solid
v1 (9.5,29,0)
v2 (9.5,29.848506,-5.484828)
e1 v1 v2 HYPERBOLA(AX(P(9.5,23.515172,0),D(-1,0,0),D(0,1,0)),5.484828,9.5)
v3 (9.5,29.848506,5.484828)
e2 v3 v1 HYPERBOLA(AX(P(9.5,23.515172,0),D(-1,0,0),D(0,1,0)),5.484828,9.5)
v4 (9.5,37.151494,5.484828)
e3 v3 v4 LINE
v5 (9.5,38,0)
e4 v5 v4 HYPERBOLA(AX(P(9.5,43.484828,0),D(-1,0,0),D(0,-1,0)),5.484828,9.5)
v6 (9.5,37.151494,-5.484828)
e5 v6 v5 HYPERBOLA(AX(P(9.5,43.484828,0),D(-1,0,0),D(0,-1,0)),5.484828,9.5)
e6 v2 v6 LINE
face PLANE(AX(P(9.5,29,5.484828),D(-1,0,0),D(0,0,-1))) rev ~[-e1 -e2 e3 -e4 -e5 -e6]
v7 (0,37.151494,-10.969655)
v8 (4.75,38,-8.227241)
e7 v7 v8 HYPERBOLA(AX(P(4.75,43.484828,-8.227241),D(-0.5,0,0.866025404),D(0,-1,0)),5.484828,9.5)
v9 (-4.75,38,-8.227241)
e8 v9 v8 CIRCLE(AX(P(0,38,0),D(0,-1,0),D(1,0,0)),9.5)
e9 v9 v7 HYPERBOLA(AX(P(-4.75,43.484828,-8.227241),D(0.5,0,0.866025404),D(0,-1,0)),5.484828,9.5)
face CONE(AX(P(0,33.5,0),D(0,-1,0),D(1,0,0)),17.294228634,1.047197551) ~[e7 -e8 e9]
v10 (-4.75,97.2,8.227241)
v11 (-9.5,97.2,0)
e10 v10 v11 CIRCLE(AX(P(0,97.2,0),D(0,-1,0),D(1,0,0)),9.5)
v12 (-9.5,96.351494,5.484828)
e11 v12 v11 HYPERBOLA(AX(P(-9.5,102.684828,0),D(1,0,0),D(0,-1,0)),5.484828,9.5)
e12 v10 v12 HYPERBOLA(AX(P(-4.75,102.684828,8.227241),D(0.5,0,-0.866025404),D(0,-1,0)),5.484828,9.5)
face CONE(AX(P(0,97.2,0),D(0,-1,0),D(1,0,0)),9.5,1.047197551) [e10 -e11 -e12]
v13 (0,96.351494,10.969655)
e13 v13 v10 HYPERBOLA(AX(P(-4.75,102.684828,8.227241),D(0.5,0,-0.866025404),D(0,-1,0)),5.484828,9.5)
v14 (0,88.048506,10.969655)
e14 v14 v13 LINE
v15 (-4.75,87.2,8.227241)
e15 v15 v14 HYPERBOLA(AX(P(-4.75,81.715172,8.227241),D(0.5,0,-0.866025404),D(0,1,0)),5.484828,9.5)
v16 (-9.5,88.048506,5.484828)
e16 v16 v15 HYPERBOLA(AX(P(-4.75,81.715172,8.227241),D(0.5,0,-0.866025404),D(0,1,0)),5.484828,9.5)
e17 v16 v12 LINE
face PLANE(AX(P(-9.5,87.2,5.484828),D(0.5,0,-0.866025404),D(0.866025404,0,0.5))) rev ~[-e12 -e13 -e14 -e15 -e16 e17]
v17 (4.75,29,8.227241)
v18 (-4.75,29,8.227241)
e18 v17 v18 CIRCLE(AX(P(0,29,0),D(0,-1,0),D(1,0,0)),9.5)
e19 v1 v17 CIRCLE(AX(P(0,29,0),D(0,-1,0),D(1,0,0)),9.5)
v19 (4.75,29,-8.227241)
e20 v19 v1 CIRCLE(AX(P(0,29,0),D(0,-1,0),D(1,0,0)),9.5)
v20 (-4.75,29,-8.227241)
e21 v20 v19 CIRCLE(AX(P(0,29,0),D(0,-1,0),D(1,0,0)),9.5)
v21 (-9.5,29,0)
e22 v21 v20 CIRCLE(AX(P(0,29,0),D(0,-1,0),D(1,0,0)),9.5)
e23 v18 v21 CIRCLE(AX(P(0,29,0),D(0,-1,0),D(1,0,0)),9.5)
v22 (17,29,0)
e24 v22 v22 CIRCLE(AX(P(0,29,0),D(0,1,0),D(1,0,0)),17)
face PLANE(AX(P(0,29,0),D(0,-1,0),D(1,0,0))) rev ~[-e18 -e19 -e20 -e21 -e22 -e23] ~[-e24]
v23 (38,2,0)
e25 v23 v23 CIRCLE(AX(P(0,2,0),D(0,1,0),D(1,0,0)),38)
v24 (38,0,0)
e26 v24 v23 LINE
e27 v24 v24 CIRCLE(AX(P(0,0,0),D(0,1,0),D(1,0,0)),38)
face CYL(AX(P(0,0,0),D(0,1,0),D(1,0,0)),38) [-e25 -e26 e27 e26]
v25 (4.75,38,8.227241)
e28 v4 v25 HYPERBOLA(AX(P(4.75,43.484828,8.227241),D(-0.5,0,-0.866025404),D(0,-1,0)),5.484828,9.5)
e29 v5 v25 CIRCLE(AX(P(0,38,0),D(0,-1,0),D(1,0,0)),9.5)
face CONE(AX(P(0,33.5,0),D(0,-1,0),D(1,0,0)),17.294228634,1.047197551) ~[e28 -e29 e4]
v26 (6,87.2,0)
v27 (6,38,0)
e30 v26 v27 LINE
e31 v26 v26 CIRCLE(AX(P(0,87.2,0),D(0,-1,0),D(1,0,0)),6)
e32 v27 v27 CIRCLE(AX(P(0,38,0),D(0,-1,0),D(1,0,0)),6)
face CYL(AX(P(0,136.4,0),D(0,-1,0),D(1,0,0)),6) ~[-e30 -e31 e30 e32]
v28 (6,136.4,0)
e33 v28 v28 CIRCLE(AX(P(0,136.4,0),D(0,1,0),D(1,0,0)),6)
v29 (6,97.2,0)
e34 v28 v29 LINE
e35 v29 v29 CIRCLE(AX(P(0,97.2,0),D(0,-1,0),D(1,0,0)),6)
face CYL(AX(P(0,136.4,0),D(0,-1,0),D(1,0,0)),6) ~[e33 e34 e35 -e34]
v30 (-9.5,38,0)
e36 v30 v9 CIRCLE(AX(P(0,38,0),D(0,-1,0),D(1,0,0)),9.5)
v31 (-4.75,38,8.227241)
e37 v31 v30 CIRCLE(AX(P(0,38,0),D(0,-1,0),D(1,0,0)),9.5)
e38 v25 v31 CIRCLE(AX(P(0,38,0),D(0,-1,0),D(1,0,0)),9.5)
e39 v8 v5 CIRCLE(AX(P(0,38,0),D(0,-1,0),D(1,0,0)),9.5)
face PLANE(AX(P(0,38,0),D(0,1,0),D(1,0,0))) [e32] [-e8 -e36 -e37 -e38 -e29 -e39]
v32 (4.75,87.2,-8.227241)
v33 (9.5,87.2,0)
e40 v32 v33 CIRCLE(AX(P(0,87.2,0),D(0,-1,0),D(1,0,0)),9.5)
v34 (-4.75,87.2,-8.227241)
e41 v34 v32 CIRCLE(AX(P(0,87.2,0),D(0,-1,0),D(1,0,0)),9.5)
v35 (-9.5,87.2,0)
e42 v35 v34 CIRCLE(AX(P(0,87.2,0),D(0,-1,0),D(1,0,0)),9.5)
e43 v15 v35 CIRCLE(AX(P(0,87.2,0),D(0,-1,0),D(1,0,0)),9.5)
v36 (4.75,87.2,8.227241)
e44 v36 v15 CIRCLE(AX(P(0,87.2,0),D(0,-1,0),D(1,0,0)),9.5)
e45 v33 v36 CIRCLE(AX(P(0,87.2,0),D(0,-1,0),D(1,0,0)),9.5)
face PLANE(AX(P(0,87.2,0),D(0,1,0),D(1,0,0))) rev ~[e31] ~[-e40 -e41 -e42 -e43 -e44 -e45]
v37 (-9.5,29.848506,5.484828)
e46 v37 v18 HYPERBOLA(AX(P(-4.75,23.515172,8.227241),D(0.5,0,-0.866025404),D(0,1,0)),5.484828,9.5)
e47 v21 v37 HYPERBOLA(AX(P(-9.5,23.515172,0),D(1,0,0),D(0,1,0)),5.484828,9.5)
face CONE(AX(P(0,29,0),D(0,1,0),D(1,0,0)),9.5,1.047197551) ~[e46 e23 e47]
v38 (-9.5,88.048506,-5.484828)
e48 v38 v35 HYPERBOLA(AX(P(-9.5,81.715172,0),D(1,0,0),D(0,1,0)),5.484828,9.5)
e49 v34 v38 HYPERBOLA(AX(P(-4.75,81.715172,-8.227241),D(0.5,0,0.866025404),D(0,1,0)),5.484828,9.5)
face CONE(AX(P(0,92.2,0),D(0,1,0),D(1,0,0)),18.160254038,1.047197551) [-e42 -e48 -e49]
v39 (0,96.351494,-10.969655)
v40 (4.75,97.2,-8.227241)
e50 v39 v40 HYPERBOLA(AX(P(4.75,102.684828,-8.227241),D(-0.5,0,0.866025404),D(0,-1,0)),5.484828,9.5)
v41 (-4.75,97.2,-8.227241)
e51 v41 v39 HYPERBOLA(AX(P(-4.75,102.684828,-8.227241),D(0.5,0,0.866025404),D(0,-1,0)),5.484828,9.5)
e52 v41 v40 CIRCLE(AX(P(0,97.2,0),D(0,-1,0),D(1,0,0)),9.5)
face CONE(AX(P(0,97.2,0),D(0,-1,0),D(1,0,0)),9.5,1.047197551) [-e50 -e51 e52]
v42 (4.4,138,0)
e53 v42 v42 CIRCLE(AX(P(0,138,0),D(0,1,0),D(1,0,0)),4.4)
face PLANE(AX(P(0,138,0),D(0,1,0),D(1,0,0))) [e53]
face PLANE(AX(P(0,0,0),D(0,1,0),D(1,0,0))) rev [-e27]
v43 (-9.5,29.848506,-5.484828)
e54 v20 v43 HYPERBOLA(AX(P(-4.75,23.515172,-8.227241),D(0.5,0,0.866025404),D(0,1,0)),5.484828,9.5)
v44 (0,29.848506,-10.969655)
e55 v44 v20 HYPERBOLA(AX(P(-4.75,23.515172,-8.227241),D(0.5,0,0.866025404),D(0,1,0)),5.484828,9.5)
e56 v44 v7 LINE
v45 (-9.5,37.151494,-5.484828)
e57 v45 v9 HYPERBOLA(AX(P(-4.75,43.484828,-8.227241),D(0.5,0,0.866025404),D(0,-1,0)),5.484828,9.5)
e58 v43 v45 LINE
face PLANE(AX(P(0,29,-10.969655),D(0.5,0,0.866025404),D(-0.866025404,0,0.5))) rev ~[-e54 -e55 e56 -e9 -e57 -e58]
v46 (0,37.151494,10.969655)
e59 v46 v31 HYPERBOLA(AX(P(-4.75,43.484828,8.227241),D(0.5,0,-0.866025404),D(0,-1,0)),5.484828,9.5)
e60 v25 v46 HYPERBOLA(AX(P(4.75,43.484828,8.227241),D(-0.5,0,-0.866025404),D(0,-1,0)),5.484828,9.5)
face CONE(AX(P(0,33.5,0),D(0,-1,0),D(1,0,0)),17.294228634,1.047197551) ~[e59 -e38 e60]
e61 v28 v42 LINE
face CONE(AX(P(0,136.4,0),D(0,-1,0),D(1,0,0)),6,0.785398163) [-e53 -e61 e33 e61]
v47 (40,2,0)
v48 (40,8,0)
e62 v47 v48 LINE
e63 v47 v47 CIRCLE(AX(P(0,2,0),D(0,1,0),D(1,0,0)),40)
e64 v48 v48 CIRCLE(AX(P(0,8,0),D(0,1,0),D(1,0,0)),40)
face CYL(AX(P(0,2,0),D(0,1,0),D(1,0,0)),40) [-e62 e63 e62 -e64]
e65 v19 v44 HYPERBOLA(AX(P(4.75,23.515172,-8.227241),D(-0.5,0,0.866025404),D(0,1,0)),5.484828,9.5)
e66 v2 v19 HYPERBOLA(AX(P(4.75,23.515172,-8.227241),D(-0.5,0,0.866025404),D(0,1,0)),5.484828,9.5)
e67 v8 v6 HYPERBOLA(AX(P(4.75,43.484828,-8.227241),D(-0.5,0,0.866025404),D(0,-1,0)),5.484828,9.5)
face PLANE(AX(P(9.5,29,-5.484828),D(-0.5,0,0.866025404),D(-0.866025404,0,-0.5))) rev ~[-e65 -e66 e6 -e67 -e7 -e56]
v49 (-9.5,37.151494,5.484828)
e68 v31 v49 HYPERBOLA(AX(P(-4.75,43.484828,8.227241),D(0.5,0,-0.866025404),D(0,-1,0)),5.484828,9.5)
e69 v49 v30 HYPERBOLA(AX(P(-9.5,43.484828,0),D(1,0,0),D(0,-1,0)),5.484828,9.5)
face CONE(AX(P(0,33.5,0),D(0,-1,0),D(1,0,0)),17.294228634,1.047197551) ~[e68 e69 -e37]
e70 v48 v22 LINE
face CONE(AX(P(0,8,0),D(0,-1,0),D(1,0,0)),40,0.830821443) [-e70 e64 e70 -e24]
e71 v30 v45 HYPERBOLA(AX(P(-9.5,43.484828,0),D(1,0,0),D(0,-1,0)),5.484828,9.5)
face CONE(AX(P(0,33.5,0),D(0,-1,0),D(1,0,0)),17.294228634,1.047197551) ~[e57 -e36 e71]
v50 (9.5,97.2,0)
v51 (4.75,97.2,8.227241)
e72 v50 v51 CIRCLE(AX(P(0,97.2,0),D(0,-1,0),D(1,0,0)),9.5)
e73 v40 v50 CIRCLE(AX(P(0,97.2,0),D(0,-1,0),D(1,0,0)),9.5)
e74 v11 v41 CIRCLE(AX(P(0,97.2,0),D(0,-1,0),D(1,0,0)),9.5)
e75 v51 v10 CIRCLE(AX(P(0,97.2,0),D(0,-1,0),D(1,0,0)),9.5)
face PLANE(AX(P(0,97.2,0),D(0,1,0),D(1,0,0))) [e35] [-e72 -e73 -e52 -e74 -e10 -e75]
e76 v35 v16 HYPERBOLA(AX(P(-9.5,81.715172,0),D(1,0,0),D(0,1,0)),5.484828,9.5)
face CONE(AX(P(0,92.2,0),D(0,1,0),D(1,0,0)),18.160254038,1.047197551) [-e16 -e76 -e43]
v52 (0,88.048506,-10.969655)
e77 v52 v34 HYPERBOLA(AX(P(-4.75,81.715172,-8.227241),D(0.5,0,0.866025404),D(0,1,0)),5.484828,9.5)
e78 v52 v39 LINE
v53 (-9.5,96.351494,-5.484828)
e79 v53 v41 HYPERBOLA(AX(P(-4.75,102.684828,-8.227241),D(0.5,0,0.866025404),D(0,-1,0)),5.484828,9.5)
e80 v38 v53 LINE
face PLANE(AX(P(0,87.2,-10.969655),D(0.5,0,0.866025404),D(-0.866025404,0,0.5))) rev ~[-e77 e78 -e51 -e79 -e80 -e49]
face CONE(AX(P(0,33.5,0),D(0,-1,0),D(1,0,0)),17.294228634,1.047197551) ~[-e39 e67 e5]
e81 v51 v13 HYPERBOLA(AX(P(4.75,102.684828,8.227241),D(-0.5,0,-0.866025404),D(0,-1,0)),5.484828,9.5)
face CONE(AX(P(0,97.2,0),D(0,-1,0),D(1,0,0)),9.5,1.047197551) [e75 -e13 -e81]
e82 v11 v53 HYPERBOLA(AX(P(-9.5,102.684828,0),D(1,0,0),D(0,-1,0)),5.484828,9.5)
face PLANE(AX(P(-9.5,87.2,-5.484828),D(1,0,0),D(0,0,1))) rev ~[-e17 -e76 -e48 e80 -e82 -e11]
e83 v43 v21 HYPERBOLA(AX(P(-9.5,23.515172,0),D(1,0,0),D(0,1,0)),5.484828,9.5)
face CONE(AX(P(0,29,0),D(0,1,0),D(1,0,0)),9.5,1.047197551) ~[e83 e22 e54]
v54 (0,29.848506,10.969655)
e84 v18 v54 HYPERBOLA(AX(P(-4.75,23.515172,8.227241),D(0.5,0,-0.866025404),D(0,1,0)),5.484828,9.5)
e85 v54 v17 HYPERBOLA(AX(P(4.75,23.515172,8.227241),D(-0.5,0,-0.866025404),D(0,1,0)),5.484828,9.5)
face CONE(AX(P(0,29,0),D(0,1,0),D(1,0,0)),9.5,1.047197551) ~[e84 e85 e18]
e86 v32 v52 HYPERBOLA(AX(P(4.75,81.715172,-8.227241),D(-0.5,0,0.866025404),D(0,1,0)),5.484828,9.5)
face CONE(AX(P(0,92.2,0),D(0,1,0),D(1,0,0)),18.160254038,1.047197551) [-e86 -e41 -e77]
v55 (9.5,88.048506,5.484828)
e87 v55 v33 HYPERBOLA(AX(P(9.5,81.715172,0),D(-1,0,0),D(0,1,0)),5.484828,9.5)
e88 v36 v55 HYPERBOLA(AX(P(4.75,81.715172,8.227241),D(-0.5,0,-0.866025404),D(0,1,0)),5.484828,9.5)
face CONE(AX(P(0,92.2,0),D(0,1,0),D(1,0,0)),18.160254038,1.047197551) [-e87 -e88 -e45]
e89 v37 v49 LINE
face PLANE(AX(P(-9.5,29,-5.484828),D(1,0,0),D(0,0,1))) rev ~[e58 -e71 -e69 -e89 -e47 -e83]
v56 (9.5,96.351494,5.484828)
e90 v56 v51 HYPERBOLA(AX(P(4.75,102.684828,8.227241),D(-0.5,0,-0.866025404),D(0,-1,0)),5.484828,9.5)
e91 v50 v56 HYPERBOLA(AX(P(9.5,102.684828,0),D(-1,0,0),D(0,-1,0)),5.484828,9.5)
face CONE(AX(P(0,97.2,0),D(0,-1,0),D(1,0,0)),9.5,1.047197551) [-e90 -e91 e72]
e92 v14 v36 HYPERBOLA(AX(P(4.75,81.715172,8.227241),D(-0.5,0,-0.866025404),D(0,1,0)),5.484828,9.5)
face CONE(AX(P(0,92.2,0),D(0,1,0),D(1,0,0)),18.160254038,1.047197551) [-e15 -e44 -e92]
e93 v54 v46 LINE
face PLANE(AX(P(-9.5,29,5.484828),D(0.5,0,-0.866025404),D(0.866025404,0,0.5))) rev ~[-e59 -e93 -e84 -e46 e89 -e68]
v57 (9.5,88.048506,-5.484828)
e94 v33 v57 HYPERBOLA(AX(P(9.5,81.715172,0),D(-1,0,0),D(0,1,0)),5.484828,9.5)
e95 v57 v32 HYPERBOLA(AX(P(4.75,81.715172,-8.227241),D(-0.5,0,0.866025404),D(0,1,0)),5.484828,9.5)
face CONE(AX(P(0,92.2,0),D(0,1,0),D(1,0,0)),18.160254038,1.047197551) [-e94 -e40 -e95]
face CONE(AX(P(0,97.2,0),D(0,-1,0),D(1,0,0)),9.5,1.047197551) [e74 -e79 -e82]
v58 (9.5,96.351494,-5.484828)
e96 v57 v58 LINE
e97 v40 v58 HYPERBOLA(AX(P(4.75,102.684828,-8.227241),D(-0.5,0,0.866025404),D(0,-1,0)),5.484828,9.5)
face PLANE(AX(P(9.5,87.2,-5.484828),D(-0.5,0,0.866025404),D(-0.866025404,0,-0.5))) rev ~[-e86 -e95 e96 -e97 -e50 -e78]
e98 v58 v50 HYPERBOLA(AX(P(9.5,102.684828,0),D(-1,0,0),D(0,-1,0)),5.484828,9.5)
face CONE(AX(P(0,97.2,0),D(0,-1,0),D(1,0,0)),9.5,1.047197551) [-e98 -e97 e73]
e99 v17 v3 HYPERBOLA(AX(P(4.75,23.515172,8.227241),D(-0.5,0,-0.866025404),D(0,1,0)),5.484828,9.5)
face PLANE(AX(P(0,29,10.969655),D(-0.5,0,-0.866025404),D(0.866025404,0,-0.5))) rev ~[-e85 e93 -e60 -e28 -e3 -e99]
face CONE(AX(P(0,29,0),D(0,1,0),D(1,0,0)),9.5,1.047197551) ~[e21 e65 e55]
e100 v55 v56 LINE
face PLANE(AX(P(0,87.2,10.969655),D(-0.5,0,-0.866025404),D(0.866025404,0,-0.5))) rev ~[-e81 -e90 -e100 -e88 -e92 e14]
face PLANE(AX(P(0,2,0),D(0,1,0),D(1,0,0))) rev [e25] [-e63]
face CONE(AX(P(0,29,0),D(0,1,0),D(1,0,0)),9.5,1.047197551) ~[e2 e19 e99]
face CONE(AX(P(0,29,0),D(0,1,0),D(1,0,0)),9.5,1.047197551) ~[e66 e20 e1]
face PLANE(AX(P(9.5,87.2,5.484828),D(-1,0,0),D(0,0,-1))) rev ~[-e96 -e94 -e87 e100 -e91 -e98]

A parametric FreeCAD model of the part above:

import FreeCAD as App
import Part
import Sketcher
from FreeCAD import Vector
Q = App.Units.Quantity


def add_polygon(sketch, points):
    """Adds a closed chain of lines whose ends are joined by coincident constraints."""
    first, n = sketch.GeometryCount, len(points)
    for a, b in zip(points, points[1:] + points[:1]):
        sketch.addGeometry(Part.LineSegment(App.Vector(*a, 0), App.Vector(*b, 0)), False)
    for i in range(n):
        sketch.addConstraint(Sketcher.Constraint("Coincident", first + i, 2, first + (i + 1) % n, 1))

doc = App.newDocument("Part")
body = doc.addObject("PartDesign::Body", "Body")

# Sketch on XY plane
sketch1 = body.newObject("Sketcher::SketchObject", "Sketch")
sketch1.AttachmentSupport = (doc.getObject("XY_Plane"), [""])
sketch1.MapMode = "FlatFace"
add_polygon(sketch1, [(-38, 0), (0, 0), (0, 138), (-4.4, 138), (-6, 136.4), (-6, 29), (-17, 29), (-40, 8), (-40, 2), (-38, 2)])  # lines 0-9
sketch1.addConstraint(Sketcher.Constraint("Horizontal", 0))
sketch1.addConstraint(Sketcher.Constraint("Vertical", 1))
sketch1.addConstraint(Sketcher.Constraint("Horizontal", 2))
sketch1.addConstraint(Sketcher.Constraint("Vertical", 4))
sketch1.addConstraint(Sketcher.Constraint("Horizontal", 5))
sketch1.addConstraint(Sketcher.Constraint("Vertical", 7))
sketch1.addConstraint(Sketcher.Constraint("Horizontal", 8))
sketch1.addConstraint(Sketcher.Constraint("Vertical", 9))
sketch1.addConstraint(Sketcher.Constraint("Coincident", 0, 2, -1, 1))
sketch1.addConstraint(Sketcher.Constraint("Equal", 8, 9))
sketch1.addConstraint(Sketcher.Constraint("DistanceX", 0, 1, 0, 2, 38.0))
sketch1.addConstraint(Sketcher.Constraint("DistanceX", 5, 2, 5, 1, 11.0))
sketch1.addConstraint(Sketcher.Constraint("DistanceX", 8, 1, 8, 2, 2.0))
sketch1.addConstraint(Sketcher.Constraint("DistanceY", 1, 1, 1, 2, 138.0))
sketch1.addConstraint(Sketcher.Constraint("DistanceY", 7, 2, 7, 1, 6.0))
sketch1.addConstraint(Sketcher.Constraint("Angle", 3, Q("-135 deg")))
sketch1.addConstraint(Sketcher.Constraint("DistanceX", 2, 2, 2, 1, 4.4))
sketch1.addConstraint(Sketcher.Constraint("DistanceY", 4, 2, 4, 1, 107.4))
sketch1.addConstraint(Sketcher.Constraint("DistanceX", 3, 2, -1, 1, 6.0))
revolution = body.newObject("PartDesign::Revolution", "Revolution")
revolution.Profile = sketch1
revolution.ReferenceAxis = (sketch1, ["V_Axis"])
revolution.Angle = 360

# Sketch on XZ plane
sketch2 = body.newObject("Sketcher::SketchObject", "Sketch001")
sketch2.AttachmentSupport = (doc.getObject("XZ_Plane"), [""])
sketch2.MapMode = "FlatFace"
sketch2.AttachmentOffset = App.Placement(Vector(0, 0, -29), App.Rotation())
add_polygon(sketch2, [(0, -11), (-10, -5), (-10, 5), (0, 11), (10, 5), (10, -5)])  # lines 0-5
sketch2.addConstraint(Sketcher.Constraint("Vertical", 1))
sketch2.addConstraint(Sketcher.Constraint("Vertical", 4))
sketch2.addConstraint(Sketcher.Constraint("Symmetric", 0, 2, 3, 2, -1, 1))
sketch2.addConstraint(Sketcher.Constraint("Symmetric", 2, 2, 5, 2, -1, 1))
sketch2.addConstraint(Sketcher.Constraint("PointOnObject", 2, 2, -2))
sketch2.addConstraint(Sketcher.Constraint("Parallel", 2, 5))
sketch2.addConstraint(Sketcher.Constraint("Horizontal", 1, 2, 3, 2))
sketch2.addConstraint(Sketcher.Constraint("Angle", 0, Q("150 deg")))
sketch2.addConstraint(Sketcher.Constraint("DistanceX", 1, 2, 3, 2, 19.0))
sketch2.addConstraint(Sketcher.Constraint("DistanceY", 1, 1, 1, 2, 10.969655))
pad1 = body.newObject("PartDesign::Pad", "Pad")
pad1.Profile = sketch2
pad1.Length = 9
pad1.Reversed = True

# Sketch on XZ plane
sketch3 = body.newObject("Sketcher::SketchObject", "Sketch002")
sketch3.AttachmentSupport = (doc.getObject("XZ_Plane"), [""])
sketch3.MapMode = "FlatFace"
sketch3.AttachmentOffset = App.Placement(Vector(0, 0, -87.2), App.Rotation())
add_polygon(sketch3, [(10, -5), (0, -11), (-10, -5), (-10, 5), (0, 11), (10, 5)])  # lines 0-5
sketch3.addConstraint(Sketcher.Constraint("Vertical", 2))
sketch3.addConstraint(Sketcher.Constraint("Vertical", 5))
sketch3.addConstraint(Sketcher.Constraint("Symmetric", 0, 2, 3, 2, -1, 1))
sketch3.addConstraint(Sketcher.Constraint("Symmetric", 1, 2, 4, 2, -1, 1))
sketch3.addConstraint(Sketcher.Constraint("PointOnObject", 0, 2, -2))
sketch3.addConstraint(Sketcher.Constraint("Parallel", 0, 3))
sketch3.addConstraint(Sketcher.Constraint("Horizontal", 2, 2, 4, 2))
sketch3.addConstraint(Sketcher.Constraint("Angle", 0, Q("-150 deg")))
sketch3.addConstraint(Sketcher.Constraint("DistanceX", 2, 2, 4, 2, 19.0))
sketch3.addConstraint(Sketcher.Constraint("DistanceY", 2, 1, 2, 2, 10.969655))
pad2 = body.newObject("PartDesign::Pad", "Pad001")
pad2.Profile = sketch3
pad2.Length = 10
pad2.Reversed = True

# Sketch on XY plane
sketch4 = body.newObject("Sketcher::SketchObject", "Sketch003")
sketch4.AttachmentSupport = (doc.getObject("XY_Plane"), [""])
sketch4.MapMode = "FlatFace"
add_polygon(sketch4, [(-9.5, 97.2), (-18.2, 97.2), (-18.2, 92.2)])  # lines 0-2
add_polygon(sketch4, [(-18.2, 92.2), (-18.2, 87.2), (-9.5, 87.2)])  # lines 3-5
add_polygon(sketch4, [(-17.3, 38), (-17.3, 33.5), (-9.5, 38)])  # lines 6-8
add_polygon(sketch4, [(-17.3, 33.5), (-17.3, 29), (-9.5, 29)])  # lines 9-11
sketch4.addConstraint(Sketcher.Constraint("Horizontal", 0))
sketch4.addConstraint(Sketcher.Constraint("Vertical", 1))
sketch4.addConstraint(Sketcher.Constraint("Vertical", 3))
sketch4.addConstraint(Sketcher.Constraint("Horizontal", 4))
sketch4.addConstraint(Sketcher.Constraint("Vertical", 6))
sketch4.addConstraint(Sketcher.Constraint("Horizontal", 8))
sketch4.addConstraint(Sketcher.Constraint("Vertical", 9))
sketch4.addConstraint(Sketcher.Constraint("Horizontal", 10))
sketch4.addConstraint(Sketcher.Constraint("Coincident", 5, 2, 1, 2))
sketch4.addConstraint(Sketcher.Constraint("Coincident", 11, 2, 6, 2))
sketch4.addConstraint(Sketcher.Constraint("Parallel", 2, 7))
sketch4.addConstraint(Sketcher.Constraint("Parallel", 5, 11))
sketch4.addConstraint(Sketcher.Constraint("Vertical", 2, 2, 4, 2))
sketch4.addConstraint(Sketcher.Constraint("Vertical", 4, 2, 7, 2))
sketch4.addConstraint(Sketcher.Constraint("Vertical", 7, 2, 10, 2))
sketch4.addConstraint(Sketcher.Constraint("Equal", 1, 3))
sketch4.addConstraint(Sketcher.Constraint("DistanceY", 1, 2, 1, 1, 5.0))
sketch4.addConstraint(Sketcher.Constraint("Angle", 2, Q("30 deg")))
sketch4.addConstraint(Sketcher.Constraint("Distance", 7, 9.0))
sketch4.addConstraint(Sketcher.Constraint("DistanceY", -1, 1, 7, 2, 38.0))
sketch4.addConstraint(Sketcher.Constraint("DistanceY", -1, 1, 0, 2, 97.2))
sketch4.addConstraint(Sketcher.Constraint("DistanceX", 2, 2, -1, 1, 9.5))
groove = body.newObject("PartDesign::Groove", "Groove")
groove.Profile = sketch4
groove.ReferenceAxis = (sketch4, ["V_Axis"])
groove.Angle = 360

doc.recompute()
